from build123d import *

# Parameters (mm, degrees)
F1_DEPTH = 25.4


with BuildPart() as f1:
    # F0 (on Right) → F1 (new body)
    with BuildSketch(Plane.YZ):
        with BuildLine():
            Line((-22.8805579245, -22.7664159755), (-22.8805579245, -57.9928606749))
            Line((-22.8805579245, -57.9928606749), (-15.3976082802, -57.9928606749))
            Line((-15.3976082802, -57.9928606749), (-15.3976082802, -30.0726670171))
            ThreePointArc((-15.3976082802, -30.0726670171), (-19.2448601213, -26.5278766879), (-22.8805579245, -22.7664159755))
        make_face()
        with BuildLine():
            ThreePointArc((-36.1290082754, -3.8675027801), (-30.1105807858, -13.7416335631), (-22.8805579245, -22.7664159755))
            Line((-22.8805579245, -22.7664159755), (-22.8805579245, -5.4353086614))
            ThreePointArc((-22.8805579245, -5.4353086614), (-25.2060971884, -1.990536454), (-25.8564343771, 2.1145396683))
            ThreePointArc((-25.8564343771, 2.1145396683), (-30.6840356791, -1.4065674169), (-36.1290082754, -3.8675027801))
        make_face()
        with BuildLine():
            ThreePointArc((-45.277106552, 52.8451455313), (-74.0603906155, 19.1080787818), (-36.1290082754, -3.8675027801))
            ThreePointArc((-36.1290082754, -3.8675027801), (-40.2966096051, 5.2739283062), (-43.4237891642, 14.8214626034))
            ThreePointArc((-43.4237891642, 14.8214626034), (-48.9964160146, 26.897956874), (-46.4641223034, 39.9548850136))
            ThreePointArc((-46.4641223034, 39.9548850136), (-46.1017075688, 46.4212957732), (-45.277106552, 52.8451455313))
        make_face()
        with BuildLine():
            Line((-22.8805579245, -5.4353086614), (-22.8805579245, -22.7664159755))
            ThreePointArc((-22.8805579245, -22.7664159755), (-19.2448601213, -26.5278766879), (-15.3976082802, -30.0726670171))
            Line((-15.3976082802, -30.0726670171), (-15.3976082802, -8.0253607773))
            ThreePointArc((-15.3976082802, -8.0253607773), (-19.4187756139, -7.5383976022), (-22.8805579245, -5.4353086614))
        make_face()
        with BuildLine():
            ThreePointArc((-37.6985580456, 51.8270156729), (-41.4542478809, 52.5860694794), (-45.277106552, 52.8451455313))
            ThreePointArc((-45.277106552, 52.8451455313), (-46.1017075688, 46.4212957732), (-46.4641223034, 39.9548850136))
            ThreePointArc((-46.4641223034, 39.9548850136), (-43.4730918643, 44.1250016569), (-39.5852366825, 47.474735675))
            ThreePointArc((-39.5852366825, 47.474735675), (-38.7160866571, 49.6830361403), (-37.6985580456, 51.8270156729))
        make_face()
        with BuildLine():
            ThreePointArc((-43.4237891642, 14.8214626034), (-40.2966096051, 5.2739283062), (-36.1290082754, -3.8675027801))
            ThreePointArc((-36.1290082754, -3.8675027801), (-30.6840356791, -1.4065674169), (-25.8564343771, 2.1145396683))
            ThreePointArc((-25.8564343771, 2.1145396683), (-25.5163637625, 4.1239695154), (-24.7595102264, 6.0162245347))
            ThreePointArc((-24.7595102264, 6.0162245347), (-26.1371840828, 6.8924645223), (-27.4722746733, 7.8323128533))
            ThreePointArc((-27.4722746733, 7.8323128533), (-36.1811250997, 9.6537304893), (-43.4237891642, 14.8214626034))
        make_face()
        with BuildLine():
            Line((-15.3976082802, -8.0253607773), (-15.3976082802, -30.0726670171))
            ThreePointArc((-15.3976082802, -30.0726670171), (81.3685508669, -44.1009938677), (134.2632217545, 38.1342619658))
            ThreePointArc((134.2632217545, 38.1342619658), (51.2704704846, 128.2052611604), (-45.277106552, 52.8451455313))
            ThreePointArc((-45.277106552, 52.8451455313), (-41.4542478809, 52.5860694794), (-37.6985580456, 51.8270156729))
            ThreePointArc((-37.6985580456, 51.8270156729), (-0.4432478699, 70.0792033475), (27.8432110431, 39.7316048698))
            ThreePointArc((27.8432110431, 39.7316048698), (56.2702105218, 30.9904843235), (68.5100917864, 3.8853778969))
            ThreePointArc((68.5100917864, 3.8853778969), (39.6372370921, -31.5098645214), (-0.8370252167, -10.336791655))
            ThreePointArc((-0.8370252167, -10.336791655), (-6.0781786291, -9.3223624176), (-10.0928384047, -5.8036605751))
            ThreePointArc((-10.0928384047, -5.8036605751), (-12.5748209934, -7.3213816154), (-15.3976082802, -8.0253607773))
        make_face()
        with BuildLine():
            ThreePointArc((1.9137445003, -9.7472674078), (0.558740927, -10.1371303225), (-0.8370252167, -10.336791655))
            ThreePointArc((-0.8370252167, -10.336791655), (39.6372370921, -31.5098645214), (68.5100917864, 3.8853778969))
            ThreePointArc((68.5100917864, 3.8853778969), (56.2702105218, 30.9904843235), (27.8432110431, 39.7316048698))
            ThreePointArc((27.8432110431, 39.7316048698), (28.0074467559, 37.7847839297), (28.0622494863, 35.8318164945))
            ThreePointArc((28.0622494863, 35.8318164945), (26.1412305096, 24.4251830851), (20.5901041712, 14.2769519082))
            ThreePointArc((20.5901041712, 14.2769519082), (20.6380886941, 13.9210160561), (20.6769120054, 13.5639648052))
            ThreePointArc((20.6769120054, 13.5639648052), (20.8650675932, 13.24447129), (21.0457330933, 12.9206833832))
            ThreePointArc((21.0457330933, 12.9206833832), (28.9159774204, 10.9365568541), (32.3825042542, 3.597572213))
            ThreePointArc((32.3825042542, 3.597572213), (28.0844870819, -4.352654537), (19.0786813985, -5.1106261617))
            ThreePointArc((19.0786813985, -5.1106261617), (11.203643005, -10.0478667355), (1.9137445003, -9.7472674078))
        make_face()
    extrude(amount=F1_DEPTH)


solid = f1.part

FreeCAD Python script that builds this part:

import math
import FreeCAD as App
import Part
import Sketcher
from FreeCAD import Vector
Q = App.Units.Quantity

doc = App.newDocument("Part")
params = doc.addObject("Spreadsheet::Sheet", "Params")
for row, (alias, value) in enumerate([
    ("pad1_length", "1 in"),
], start=1):
    params.set(f"A{row}", alias)
    params.set(f"B{row}", "=" + value)
    params.setAlias(f"B{row}", alias)

body = doc.addObject("PartDesign::Body", "Body")

# Sketch on YZ plane
sketch1 = body.newObject("Sketcher::SketchObject", "Sketch")
sketch1.AttachmentSupport = (doc.getObject("YZ_Plane"), [""])
sketch1.MapMode = "FlatFace"
sketch1.addGeometry([
    Part.LineSegment(Vector(-22.880558, -22.766416, 0), Vector(-22.880558, -57.992861, 0)),  # 0
    Part.LineSegment(Vector(-22.880558, -57.992861, 0), Vector(-15.397608, -57.992861, 0)),  # 1
    Part.LineSegment(Vector(-15.397608, -57.992861, 0), Vector(-15.397608, -30.072667, 0)),  # 2
    Part.ArcOfCircle(Part.Circle(Vector(43.890379, 38.134262, 0), Vector(0, 0, 1), 90.372842), math.radians(-130.998377), math.radians(0)),  # 3
    Part.ArcOfCircle(Part.Circle(Vector(43.890379, 38.134262, 0), Vector(0, 0, 1), 90.372842), math.radians(0), math.radians(170.631711)),  # 4
    Part.ArcOfCircle(Part.Circle(Vector(-45.329185, 23.742599, 0), Vector(0, 0, 1), 29.102594), math.radians(89.89747), math.radians(288.42899)),  # 5
    Part.ArcOfCircle(Part.Circle(Vector(43.890379, 38.134262, 0), Vector(0, 0, 1), 90.372842), math.radians(-152.30525), math.radians(-137.632569)),  # 6
    Part.ArcOfCircle(Part.Circle(Vector(-16.280829, 1.527481, 0), Vector(0, 0, 1), 9.593584), math.radians(-133.466593), math.radians(-84.71766)),  # 7
    Part.ArcOfCircle(Part.Circle(Vector(-16.280829, 1.527481, 0), Vector(0, 0, 1), 9.593584), math.radians(176.491715), math.radians(226.533407)),  # 8
    Part.ArcOfCircle(Part.Circle(Vector(-16.280829, 1.527481, 0), Vector(0, 0, 1), 9.593584), math.radians(152.102569), math.radians(176.491715)),  # 9
    Part.ArcOfCircle(Part.Circle(Vector(-6.763434, 35.831817, 0), Vector(0, 0, 1), 34.825684), math.radians(-126.487168), math.radians(-121.114314)),  # 10
    Part.ArcOfCircle(Part.Circle(Vector(-27.485451, 29.50009, 0), Vector(0, 0, 1), 21.667781), math.radians(-137.356062), math.radians(-89.965159)),  # 11
    Part.ArcOfCircle(Part.Circle(Vector(-27.485451, 29.50009, 0), Vector(0, 0, 1), 21.667781), math.radians(151.150916), math.radians(222.643938)),  # 12
    Part.ArcOfCircle(Part.Circle(Vector(-27.485451, 29.50009, 0), Vector(0, 0, 1), 21.667781), math.radians(123.946804), math.radians(151.150916)),  # 13
    Part.ArcOfCircle(Part.Circle(Vector(-6.763435, 35.831817, 0), Vector(0, 0, 1), 34.825684), math.radians(152.658493), math.radians(160.468813)),  # 14
    Part.ArcOfCircle(Part.Circle(Vector(-6.763435, 35.831816, 0), Vector(0, 0, 1), 34.825684), math.radians(6.42948), math.radians(152.658493)),  # 15
    Part.ArcOfCircle(Part.Circle(Vector(-6.763435, 35.831816, 0), Vector(0, 0, 1), 34.825684), math.radians(0), math.radians(6.42948)),  # 16
    Part.ArcOfCircle(Part.Circle(Vector(-6.763435, 35.831816, 0), Vector(0, 0, 1), 34.825684), math.radians(-38.238467), math.radians(0)),  # 17
    Part.ArcOfCircle(Part.Circle(Vector(6.763435, 12.231745, 0), Vector(0, 0, 1), 13.977111), math.radians(5.469416), math.radians(8.414041)),  # 18
    Part.ArcOfCircle(Part.Circle(Vector(7.051241, 5.324407, 0), Vector(0, 0, 1), 15.923229), math.radians(28.49332), math.radians(31.161708)),  # 19
    Part.ArcOfCircle(Part.Circle(Vector(22.880558, 3.597572, 0), Vector(0, 0, 1), 9.501946), math.radians(0), math.radians(101.133746)),  # 20
    Part.ArcOfCircle(Part.Circle(Vector(22.880558, 3.597572, 0), Vector(0, 0, 1), 9.501946), math.radians(-113.585403), math.radians(0)),  # 21
    Part.ArcOfCircle(Part.Circle(Vector(7.051241, 5.324407, 0), Vector(0, 0, 1), 15.923229), math.radians(-108.822755), math.radians(-40.944977)),  # 22
    Part.ArcOfCircle(Part.Circle(Vector(-1.582932, -0.143903, 0), Vector(0, 0, 1), 10.220145), math.radians(-85.814603), math.radians(-69.992951)),  # 23
    Part.ArcOfCircle(Part.Circle(Vector(-1.582932, -0.143903, 0), Vector(0, 0, 1), 10.220145), math.radians(-146.372966), math.radians(-85.814603)),  # 24
    Part.ArcOfCircle(Part.Circle(Vector(-16.280829, 1.527481, 0), Vector(0, 0, 1), 9.593584), math.radians(-84.71766), math.radians(-49.833319)),  # 25
], False)
sketch1.addConstraint([
    Sketcher.Constraint("Coincident", 0, 2, 1, 1),
    Sketcher.Constraint("Coincident", 1, 2, 2, 1),
    Sketcher.Constraint("Coincident", 2, 2, 3, 1),
    Sketcher.Constraint("Tangent", 3, 2, 4, 1),
    Sketcher.Constraint("Coincident", 4, 2, 5, 1),
    Sketcher.Constraint("Coincident", 5, 2, 6, 1),
    Sketcher.Constraint("Coincident", 6, 2, 0, 1),
    Sketcher.Constraint("Tangent", 7, 1, 8, 2),
    Sketcher.Constraint("Tangent", 8, 1, 9, 2),
    Sketcher.Constraint("Coincident", 9, 1, 10, 2),
    Sketcher.Constraint("Coincident", 10, 1, 11, 2),
    Sketcher.Constraint("Tangent", 11, 1, 12, 2),
    Sketcher.Constraint("Tangent", 12, 1, 13, 2),
    Sketcher.Constraint("Coincident", 13, 1, 14, 2),
    Sketcher.Constraint("Tangent", 14, 1, 15, 2),
    Sketcher.Constraint("Tangent", 15, 1, 16, 2),
    Sketcher.Constraint("Tangent", 16, 1, 17, 2),
    Sketcher.Constraint("Coincident", 17, 1, 18, 2),
    Sketcher.Constraint("Coincident", 18, 1, 19, 2),
    Sketcher.Constraint("Coincident", 19, 1, 20, 2),
    Sketcher.Constraint("Tangent", 20, 1, 21, 2),
    Sketcher.Constraint("Coincident", 21, 1, 22, 2),
    Sketcher.Constraint("Coincident", 22, 1, 23, 2),
    Sketcher.Constraint("Tangent", 23, 1, 24, 2),
    Sketcher.Constraint("Coincident", 24, 1, 25, 2),
    Sketcher.Constraint("Tangent", 25, 1, 7, 2),
    Sketcher.Constraint("Vertical", 0),
    Sketcher.Constraint("Horizontal", 1),
    Sketcher.Constraint("Vertical", 2),
    Sketcher.Constraint("Coincident", 6, 3, 3, 3),
    Sketcher.Constraint("Coincident", 9, 3, 7, 3),
    Sketcher.Constraint("Coincident", 13, 3, 11, 3),
    Sketcher.Constraint("Coincident", 14, 3, 10, 3),
    Sketcher.Constraint("Coincident", 16, 3, 10, 3),
    Sketcher.Constraint("Coincident", 22, 3, 19, 3),
    Sketcher.Constraint("Equal", 3, 4),
    Sketcher.Constraint("Equal", 4, 6),
    Sketcher.Constraint("Equal", 10, 14),
    Sketcher.Constraint("Equal", 16, 17),
    Sketcher.Constraint("Equal", 20, 21),
    Sketcher.Constraint("Equal", 19, 22),
    Sketcher.Constraint("Equal", 23, 24),
    Sketcher.Constraint("Equal", 9, 25),
    Sketcher.Constraint("Horizontal", 6, 3, 3, 2),
    Sketcher.Constraint("Horizontal", 17, 3, 16, 1),
    Sketcher.Constraint("Horizontal", 21, 3, 20, 1),
    Sketcher.Constraint("Vertical", 6, 2, 7, 1),
    Sketcher.Constraint("Vertical", 2, 2, 25, 1),
    Sketcher.Constraint("Radius", 7, Q("0.3777002 in")),
    Sketcher.Constraint("Radius", 11, Q("21.667781 mm")),
    Sketcher.Constraint("Radius", 18, Q("13.977111 mm")),
    Sketcher.Constraint("Radius", 19, Q("15.923229 mm")),
    Sketcher.Constraint("Radius", 3, Q("90.372842 mm")),
    Sketcher.Constraint("Radius", 5, Q("29.102594 mm")),
    Sketcher.Constraint("Radius", 10, Q("34.825684 mm")),
    Sketcher.Constraint("Radius", 20, Q("9.501946 mm")),
    Sketcher.Constraint("Radius", 23, Q("10.220145 mm")),
    Sketcher.Constraint("DistanceX", 1, 1, 1, 2, Q("7.48295 mm")),
    Sketcher.Constraint("DistanceY", -1, 1, 5, 3, Q("23.742599 mm")),
    Sketcher.Constraint("DistanceY", 5, 2, 5, 3, Q("27.610101 mm")),
    Sketcher.Constraint("DistanceX", 17, 1, 20, 1, Q("11.7924 mm")),
    Sketcher.Constraint("DistanceY", 21, 1, 21, 3, Q("8.708198 mm")),
    Sketcher.Constraint("DistanceY", 23, 1, 19, 3, Q("15.661198 mm")),
    Sketcher.Constraint("DistanceY", 25, 1, 24, 1, Q("2.2217 mm")),
    Sketcher.Constraint("DistanceY", 0, 2, 0, 1, Q("35.226445 mm")),
    Sketcher.Constraint("DistanceY", 2, 1, 2, 2, Q("27.920194 mm")),
    Sketcher.Constraint("DistanceX", -1, 1, 3, 3, Q("43.890379 mm")),
    Sketcher.Constraint("DistanceY", -1, 1, 3, 3, Q("38.134262 mm")),
    Sketcher.Constraint("DistanceX", 7, 3, -1, 1, Q("16.280829 mm")),
    Sketcher.Constraint("DistanceY", -1, 1, 7, 3, Q("1.527481 mm")),
    Sketcher.Constraint("DistanceX", 11, 3, -1, 1, Q("27.485451 mm")),
    Sketcher.Constraint("DistanceY", -1, 1, 11, 3, Q("29.50009 mm")),
    Sketcher.Constraint("DistanceX", -1, 1, 19, 3, Q("7.051241 mm")),
    Sketcher.Constraint("DistanceY", -1, 1, 8, 1, Q("2.11454 mm")),
    Sketcher.Constraint("DistanceX", 9, 1, -1, 1, Q("24.75951 mm")),
    Sketcher.Constraint("DistanceX", 11, 1, -1, 1, Q("43.423789 mm")),
    Sketcher.Constraint("DistanceX", 14, 1, -1, 1, Q("37.698558 mm")),
    Sketcher.Constraint("DistanceX", -1, 1, 15, 1, Q("27.843211 mm")),
    Sketcher.Constraint("DistanceX", -1, 1, 16, 1, Q("28.062249 mm")),
    Sketcher.Constraint("DistanceY", -1, 1, 17, 1, Q("14.276952 mm")),
    Sketcher.Constraint("DistanceY", 23, 1, -1, 1, Q("10.336792 mm")),
    Sketcher.Constraint("DistanceX", 15, 3, 18, 3, Q("13.52687 mm")),
    Sketcher.Constraint("DistanceY", 23, 3, 19, 3, Q("5.468309 mm")),
    Sketcher.Constraint("DistanceY", 12, 1, 4, 2, Q("12.890261 mm")),
])
pad1 = body.newObject("PartDesign::Pad", "Pad")
pad1.Profile = sketch1
pad1.setExpression("Length", "Params.pad1_length")

doc.recompute()
